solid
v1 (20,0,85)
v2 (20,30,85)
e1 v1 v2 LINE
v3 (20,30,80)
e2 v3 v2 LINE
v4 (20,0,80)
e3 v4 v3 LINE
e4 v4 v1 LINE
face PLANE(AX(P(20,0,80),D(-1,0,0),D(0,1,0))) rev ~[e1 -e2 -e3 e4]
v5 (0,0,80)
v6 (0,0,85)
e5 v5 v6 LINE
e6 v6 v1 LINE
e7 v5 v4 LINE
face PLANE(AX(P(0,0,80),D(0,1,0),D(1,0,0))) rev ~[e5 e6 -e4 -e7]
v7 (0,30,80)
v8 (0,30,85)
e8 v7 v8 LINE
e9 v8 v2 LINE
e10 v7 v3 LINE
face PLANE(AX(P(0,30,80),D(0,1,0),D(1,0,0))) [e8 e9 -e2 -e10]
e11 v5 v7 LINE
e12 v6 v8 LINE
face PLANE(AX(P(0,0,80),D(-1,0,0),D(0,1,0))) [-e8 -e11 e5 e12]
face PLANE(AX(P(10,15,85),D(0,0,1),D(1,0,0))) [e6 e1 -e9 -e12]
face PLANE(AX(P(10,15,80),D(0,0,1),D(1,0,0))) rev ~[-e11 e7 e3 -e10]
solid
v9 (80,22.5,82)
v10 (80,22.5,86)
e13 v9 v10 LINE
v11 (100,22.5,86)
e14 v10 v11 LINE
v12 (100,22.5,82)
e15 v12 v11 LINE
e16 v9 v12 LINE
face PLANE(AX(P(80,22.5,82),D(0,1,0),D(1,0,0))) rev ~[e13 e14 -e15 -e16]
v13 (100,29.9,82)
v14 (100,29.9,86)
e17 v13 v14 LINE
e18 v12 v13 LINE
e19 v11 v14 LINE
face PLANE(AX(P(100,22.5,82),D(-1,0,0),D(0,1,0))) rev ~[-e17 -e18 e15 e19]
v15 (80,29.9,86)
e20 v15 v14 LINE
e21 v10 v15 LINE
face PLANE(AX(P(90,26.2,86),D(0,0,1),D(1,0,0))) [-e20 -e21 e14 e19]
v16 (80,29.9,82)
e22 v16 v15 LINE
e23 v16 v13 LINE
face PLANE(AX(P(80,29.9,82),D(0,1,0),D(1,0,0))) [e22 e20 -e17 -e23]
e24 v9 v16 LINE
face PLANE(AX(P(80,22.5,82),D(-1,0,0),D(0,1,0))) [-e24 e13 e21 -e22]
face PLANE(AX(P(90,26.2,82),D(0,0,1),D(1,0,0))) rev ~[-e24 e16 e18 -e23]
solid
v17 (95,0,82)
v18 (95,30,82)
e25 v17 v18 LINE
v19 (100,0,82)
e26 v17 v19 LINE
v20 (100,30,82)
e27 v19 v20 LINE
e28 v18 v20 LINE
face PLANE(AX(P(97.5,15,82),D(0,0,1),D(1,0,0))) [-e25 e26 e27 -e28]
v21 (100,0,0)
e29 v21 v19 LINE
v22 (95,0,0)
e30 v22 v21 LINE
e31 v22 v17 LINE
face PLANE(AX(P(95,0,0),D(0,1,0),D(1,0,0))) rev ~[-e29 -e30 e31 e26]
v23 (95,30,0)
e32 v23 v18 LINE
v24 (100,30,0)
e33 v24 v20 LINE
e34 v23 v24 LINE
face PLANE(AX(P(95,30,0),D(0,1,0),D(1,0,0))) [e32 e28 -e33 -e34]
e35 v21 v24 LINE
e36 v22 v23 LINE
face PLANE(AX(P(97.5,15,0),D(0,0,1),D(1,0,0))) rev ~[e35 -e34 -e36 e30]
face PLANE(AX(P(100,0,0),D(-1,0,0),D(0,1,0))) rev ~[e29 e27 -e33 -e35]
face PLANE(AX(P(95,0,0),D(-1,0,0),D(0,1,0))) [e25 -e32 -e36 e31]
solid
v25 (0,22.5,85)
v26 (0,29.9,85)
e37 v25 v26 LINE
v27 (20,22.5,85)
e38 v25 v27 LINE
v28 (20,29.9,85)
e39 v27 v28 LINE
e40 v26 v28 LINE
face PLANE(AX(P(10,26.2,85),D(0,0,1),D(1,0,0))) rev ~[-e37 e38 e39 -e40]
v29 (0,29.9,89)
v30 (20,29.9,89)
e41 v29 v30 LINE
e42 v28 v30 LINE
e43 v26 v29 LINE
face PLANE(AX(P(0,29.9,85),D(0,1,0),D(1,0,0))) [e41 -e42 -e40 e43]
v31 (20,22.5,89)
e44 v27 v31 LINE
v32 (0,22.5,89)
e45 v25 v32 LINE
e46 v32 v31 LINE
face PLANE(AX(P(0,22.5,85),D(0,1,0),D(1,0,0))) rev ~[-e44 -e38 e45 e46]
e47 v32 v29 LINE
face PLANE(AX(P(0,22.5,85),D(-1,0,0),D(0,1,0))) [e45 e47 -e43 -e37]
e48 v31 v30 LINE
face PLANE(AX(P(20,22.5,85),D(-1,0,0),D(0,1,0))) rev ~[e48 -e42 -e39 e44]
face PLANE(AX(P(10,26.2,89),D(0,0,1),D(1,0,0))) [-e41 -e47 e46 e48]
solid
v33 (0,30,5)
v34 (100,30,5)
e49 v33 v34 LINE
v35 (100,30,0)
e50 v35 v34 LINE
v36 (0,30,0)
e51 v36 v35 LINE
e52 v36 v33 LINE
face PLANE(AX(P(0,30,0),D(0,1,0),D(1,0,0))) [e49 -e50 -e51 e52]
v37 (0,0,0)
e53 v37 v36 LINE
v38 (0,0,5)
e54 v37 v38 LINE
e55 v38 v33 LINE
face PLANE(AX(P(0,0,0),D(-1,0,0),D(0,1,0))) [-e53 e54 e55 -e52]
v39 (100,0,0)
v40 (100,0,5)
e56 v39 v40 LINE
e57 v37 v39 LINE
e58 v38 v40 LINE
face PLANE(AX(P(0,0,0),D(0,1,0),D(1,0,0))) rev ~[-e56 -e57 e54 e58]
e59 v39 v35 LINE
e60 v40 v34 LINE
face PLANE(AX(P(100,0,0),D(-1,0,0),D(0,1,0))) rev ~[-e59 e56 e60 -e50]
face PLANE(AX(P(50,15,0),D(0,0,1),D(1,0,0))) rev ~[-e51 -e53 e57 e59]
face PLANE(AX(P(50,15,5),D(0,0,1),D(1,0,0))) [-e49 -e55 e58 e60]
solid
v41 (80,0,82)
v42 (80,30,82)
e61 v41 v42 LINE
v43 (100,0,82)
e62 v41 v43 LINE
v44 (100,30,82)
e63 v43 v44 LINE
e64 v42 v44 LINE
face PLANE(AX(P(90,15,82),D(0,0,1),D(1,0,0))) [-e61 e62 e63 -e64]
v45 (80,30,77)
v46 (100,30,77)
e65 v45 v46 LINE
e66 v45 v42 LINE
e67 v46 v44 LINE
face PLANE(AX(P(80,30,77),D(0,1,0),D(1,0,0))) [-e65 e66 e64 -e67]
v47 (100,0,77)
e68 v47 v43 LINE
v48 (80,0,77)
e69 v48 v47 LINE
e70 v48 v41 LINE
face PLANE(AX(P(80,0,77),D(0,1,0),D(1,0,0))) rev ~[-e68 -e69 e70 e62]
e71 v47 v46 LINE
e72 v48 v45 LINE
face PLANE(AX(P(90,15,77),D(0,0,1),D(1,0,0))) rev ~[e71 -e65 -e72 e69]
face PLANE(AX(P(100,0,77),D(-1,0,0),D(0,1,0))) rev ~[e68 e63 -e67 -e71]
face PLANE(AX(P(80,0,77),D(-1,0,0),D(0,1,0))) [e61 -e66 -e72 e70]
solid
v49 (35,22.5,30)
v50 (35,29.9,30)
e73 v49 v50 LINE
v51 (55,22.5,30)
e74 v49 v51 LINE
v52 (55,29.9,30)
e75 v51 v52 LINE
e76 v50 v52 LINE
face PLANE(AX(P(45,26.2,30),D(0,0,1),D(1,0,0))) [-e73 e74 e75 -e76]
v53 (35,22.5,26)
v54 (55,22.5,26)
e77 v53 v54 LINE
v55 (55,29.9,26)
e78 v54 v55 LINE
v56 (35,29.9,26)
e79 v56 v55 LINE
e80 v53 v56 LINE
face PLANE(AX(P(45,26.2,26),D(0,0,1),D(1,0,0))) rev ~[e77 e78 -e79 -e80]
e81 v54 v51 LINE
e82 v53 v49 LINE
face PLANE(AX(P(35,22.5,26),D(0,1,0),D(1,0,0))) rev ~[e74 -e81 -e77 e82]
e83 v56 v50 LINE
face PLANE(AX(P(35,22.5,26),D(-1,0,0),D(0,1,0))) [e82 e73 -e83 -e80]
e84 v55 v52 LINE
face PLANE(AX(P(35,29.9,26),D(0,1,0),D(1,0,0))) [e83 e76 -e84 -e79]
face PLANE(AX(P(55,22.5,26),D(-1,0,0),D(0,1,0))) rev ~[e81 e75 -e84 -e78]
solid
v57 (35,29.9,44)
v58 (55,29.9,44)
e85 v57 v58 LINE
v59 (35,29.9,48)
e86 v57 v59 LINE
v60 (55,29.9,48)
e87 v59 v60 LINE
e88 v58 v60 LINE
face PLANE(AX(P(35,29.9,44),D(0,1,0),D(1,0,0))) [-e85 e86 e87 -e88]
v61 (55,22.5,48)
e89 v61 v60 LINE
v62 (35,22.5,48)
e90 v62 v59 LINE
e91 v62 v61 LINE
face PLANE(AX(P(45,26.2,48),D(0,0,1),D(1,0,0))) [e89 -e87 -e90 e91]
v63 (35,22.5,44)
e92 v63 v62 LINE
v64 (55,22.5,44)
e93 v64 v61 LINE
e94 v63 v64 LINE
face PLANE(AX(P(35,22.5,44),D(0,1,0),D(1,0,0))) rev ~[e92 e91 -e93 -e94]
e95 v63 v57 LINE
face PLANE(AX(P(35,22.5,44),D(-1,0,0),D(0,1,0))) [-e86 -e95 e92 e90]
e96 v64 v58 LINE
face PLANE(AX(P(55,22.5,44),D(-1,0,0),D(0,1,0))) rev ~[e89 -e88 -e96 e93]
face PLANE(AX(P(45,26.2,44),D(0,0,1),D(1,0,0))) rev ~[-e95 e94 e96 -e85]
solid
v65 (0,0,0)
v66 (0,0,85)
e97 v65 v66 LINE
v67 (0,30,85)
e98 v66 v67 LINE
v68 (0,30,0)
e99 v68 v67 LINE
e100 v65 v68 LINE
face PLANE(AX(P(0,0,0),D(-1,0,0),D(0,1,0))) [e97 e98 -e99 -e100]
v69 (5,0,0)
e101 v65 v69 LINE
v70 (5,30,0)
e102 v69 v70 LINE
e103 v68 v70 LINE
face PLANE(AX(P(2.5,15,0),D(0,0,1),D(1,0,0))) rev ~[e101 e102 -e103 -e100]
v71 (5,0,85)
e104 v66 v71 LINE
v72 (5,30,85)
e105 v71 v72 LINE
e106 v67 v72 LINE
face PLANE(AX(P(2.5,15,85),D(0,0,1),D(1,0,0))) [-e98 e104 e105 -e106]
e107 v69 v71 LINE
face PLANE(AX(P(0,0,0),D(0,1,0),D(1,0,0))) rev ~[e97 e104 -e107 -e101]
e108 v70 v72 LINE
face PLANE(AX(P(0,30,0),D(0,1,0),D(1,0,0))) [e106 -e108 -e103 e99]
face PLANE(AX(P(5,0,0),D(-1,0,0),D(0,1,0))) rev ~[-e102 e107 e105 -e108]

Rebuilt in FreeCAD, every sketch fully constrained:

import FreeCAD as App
import Part
import Sketcher
from FreeCAD import Vector


def add_polygon(sketch, points):
    """Adds a closed chain of lines whose ends are joined by coincident constraints."""
    first, n = sketch.GeometryCount, len(points)
    for a, b in zip(points, points[1:] + points[:1]):
        sketch.addGeometry(Part.LineSegment(App.Vector(*a, 0), App.Vector(*b, 0)), False)
    for i in range(n):
        sketch.addConstraint(Sketcher.Constraint("Coincident", first + i, 2, first + (i + 1) % n, 1))

doc = App.newDocument("Part")
body = doc.addObject("PartDesign::Body", "Body")

# Sketch on XY plane
sketch1 = body.newObject("Sketcher::SketchObject", "Sketch")
sketch1.AttachmentSupport = (doc.getObject("XY_Plane"), [""])
sketch1.MapMode = "FlatFace"
add_polygon(sketch1, [(0, 30), (0, 0), (100, 0), (100, 30)])  # lines 0-3
sketch1.addConstraint(Sketcher.Constraint("Vertical", 0))
sketch1.addConstraint(Sketcher.Constraint("Horizontal", 1))
sketch1.addConstraint(Sketcher.Constraint("Vertical", 2))
sketch1.addConstraint(Sketcher.Constraint("Horizontal", 3))
sketch1.addConstraint(Sketcher.Constraint("Coincident", 0, 2, -1, 1))
sketch1.addConstraint(Sketcher.Constraint("DistanceX", 1, 1, 1, 2, 100.0))
sketch1.addConstraint(Sketcher.Constraint("DistanceY", 0, 2, 0, 1, 30.0))
pad1 = body.newObject("PartDesign::Pad", "Pad")
pad1.Profile = sketch1
pad1.Length = 5
body2 = doc.addObject("PartDesign::Body", "Body001")

# Sketch on XY plane
sketch2 = body2.newObject("Sketcher::SketchObject", "Sketch001")
sketch2.AttachmentSupport = (doc.getObject("XY_Plane001"), [""])
sketch2.MapMode = "FlatFace"
add_polygon(sketch2, [(0, 30), (0, 0), (5, 0), (5, 30)])  # lines 0-3
sketch2.addConstraint(Sketcher.Constraint("Vertical", 0))
sketch2.addConstraint(Sketcher.Constraint("Horizontal", 1))
sketch2.addConstraint(Sketcher.Constraint("Vertical", 2))
sketch2.addConstraint(Sketcher.Constraint("Horizontal", 3))
sketch2.addConstraint(Sketcher.Constraint("Coincident", 0, 2, -1, 1))
sketch2.addConstraint(Sketcher.Constraint("DistanceX", 1, 1, 1, 2, 5.0))
sketch2.addConstraint(Sketcher.Constraint("DistanceY", 0, 2, 0, 1, 30.0))
pad2 = body2.newObject("PartDesign::Pad", "Pad001")
pad2.Profile = sketch2
pad2.Length = 85
body3 = doc.addObject("PartDesign::Body", "Body002")

# Sketch on XY plane
sketch3 = body3.newObject("Sketcher::SketchObject", "Sketch002")
sketch3.AttachmentSupport = (doc.getObject("XY_Plane002"), [""])
sketch3.MapMode = "FlatFace"
add_polygon(sketch3, [(95, 30), (95, 0), (100, 0), (100, 30)])  # lines 0-3
sketch3.addConstraint(Sketcher.Constraint("Vertical", 0))
sketch3.addConstraint(Sketcher.Constraint("Horizontal", 1))
sketch3.addConstraint(Sketcher.Constraint("Vertical", 2))
sketch3.addConstraint(Sketcher.Constraint("Horizontal", 3))
sketch3.addConstraint(Sketcher.Constraint("PointOnObject", 0, 2, -1))
sketch3.addConstraint(Sketcher.Constraint("DistanceX", 1, 1, 1, 2, 5.0))
sketch3.addConstraint(Sketcher.Constraint("DistanceY", 0, 2, 0, 1, 30.0))
sketch3.addConstraint(Sketcher.Constraint("DistanceX", -1, 1, 0, 2, 95.0))
pad3 = body3.newObject("PartDesign::Pad", "Pad002")
pad3.Profile = sketch3
pad3.Length = 82
body4 = doc.addObject("PartDesign::Body", "Body003")

# Sketch on XY plane
sketch4 = body4.newObject("Sketcher::SketchObject", "Sketch003")
sketch4.AttachmentSupport = (doc.getObject("XY_Plane003"), [""])
sketch4.MapMode = "FlatFace"
sketch4.AttachmentOffset = App.Placement(Vector(0, 0, 77), App.Rotation())
add_polygon(sketch4, [(80, 30), (80, 0), (100, 0), (100, 30)])  # lines 0-3
sketch4.addConstraint(Sketcher.Constraint("Vertical", 0))
sketch4.addConstraint(Sketcher.Constraint("Horizontal", 1))
sketch4.addConstraint(Sketcher.Constraint("Vertical", 2))
sketch4.addConstraint(Sketcher.Constraint("Horizontal", 3))
sketch4.addConstraint(Sketcher.Constraint("PointOnObject", 0, 2, -1))
sketch4.addConstraint(Sketcher.Constraint("DistanceX", 1, 1, 1, 2, 20.0))
sketch4.addConstraint(Sketcher.Constraint("DistanceY", 0, 2, 0, 1, 30.0))
sketch4.addConstraint(Sketcher.Constraint("DistanceX", -1, 1, 0, 2, 80.0))
pad4 = body4.newObject("PartDesign::Pad", "Pad003")
pad4.Profile = sketch4
pad4.Length = 5
body5 = doc.addObject("PartDesign::Body", "Body004")

# Sketch on XY plane
sketch5 = body5.newObject("Sketcher::SketchObject", "Sketch004")
sketch5.AttachmentSupport = (doc.getObject("XY_Plane004"), [""])
sketch5.MapMode = "FlatFace"
sketch5.AttachmentOffset = App.Placement(Vector(0, 0, 80), App.Rotation())
add_polygon(sketch5, [(0, 30), (0, 0), (20, 0), (20, 30)])  # lines 0-3
sketch5.addConstraint(Sketcher.Constraint("Vertical", 0))
sketch5.addConstraint(Sketcher.Constraint("Horizontal", 1))
sketch5.addConstraint(Sketcher.Constraint("Vertical", 2))
sketch5.addConstraint(Sketcher.Constraint("Horizontal", 3))
sketch5.addConstraint(Sketcher.Constraint("Coincident", 0, 2, -1, 1))
sketch5.addConstraint(Sketcher.Constraint("DistanceX", 1, 1, 1, 2, 20.0))
sketch5.addConstraint(Sketcher.Constraint("DistanceY", 0, 2, 0, 1, 30.0))
pad5 = body5.newObject("PartDesign::Pad", "Pad004")
pad5.Profile = sketch5
pad5.Length = 5
body6 = doc.addObject("PartDesign::Body", "Body005")

# Sketch on XY plane
sketch6 = body6.newObject("Sketcher::SketchObject", "Sketch005")
sketch6.AttachmentSupport = (doc.getObject("XY_Plane005"), [""])
sketch6.MapMode = "FlatFace"
sketch6.AttachmentOffset = App.Placement(Vector(0, 0, 85), App.Rotation())
add_polygon(sketch6, [(0, 29.9), (0, 22.5), (20, 22.5), (20, 29.9)])  # lines 0-3
sketch6.addConstraint(Sketcher.Constraint("Vertical", 0))
sketch6.addConstraint(Sketcher.Constraint("Horizontal", 1))
sketch6.addConstraint(Sketcher.Constraint("Vertical", 2))
sketch6.addConstraint(Sketcher.Constraint("Horizontal", 3))
sketch6.addConstraint(Sketcher.Constraint("PointOnObject", 0, 2, -2))
sketch6.addConstraint(Sketcher.Constraint("DistanceX", 1, 1, 1, 2, 20.0))
sketch6.addConstraint(Sketcher.Constraint("DistanceY", 0, 2, 0, 1, 7.4))
sketch6.addConstraint(Sketcher.Constraint("DistanceY", -1, 1, 0, 2, 22.5))
pad6 = body6.newObject("PartDesign::Pad", "Pad005")
pad6.Profile = sketch6
pad6.Length = 4
body7 = doc.addObject("PartDesign::Body", "Body006")

# Sketch on XY plane
sketch7 = body7.newObject("Sketcher::SketchObject", "Sketch006")
sketch7.AttachmentSupport = (doc.getObject("XY_Plane006"), [""])
sketch7.MapMode = "FlatFace"
sketch7.AttachmentOffset = App.Placement(Vector(0, 0, 82), App.Rotation())
add_polygon(sketch7, [(80, 29.9), (80, 22.5), (100, 22.5), (100, 29.9)])  # lines 0-3
sketch7.addConstraint(Sketcher.Constraint("Vertical", 0))
sketch7.addConstraint(Sketcher.Constraint("Horizontal", 1))
sketch7.addConstraint(Sketcher.Constraint("Vertical", 2))
sketch7.addConstraint(Sketcher.Constraint("Horizontal", 3))
sketch7.addConstraint(Sketcher.Constraint("DistanceX", 1, 1, 1, 2, 20.0))
sketch7.addConstraint(Sketcher.Constraint("DistanceY", 0, 2, 0, 1, 7.4))
sketch7.addConstraint(Sketcher.Constraint("DistanceX", -1, 1, 0, 2, 80.0))
sketch7.addConstraint(Sketcher.Constraint("DistanceY", -1, 1, 0, 2, 22.5))
pad7 = body7.newObject("PartDesign::Pad", "Pad006")
pad7.Profile = sketch7
pad7.Length = 4
body8 = doc.addObject("PartDesign::Body", "Body007")

# Sketch on XY plane
sketch8 = body8.newObject("Sketcher::SketchObject", "Sketch007")
sketch8.AttachmentSupport = (doc.getObject("XY_Plane007"), [""])
sketch8.MapMode = "FlatFace"
sketch8.AttachmentOffset = App.Placement(Vector(0, 0, 26), App.Rotation())
add_polygon(sketch8, [(35, 29.9), (35, 22.5), (55, 22.5), (55, 29.9)])  # lines 0-3
sketch8.addConstraint(Sketcher.Constraint("Vertical", 0))
sketch8.addConstraint(Sketcher.Constraint("Horizontal", 1))
sketch8.addConstraint(Sketcher.Constraint("Vertical", 2))
sketch8.addConstraint(Sketcher.Constraint("Horizontal", 3))
sketch8.addConstraint(Sketcher.Constraint("DistanceX", 1, 1, 1, 2, 20.0))
sketch8.addConstraint(Sketcher.Constraint("DistanceY", 0, 2, 0, 1, 7.4))
sketch8.addConstraint(Sketcher.Constraint("DistanceX", -1, 1, 0, 2, 35.0))
sketch8.addConstraint(Sketcher.Constraint("DistanceY", -1, 1, 0, 2, 22.5))
pad8 = body8.newObject("PartDesign::Pad", "Pad007")
pad8.Profile = sketch8
pad8.Length = 4
body9 = doc.addObject("PartDesign::Body", "Body008")

# Sketch on XY plane
sketch9 = body9.newObject("Sketcher::SketchObject", "Sketch008")
sketch9.AttachmentSupport = (doc.getObject("XY_Plane008"), [""])
sketch9.MapMode = "FlatFace"
sketch9.AttachmentOffset = App.Placement(Vector(0, 0, 44), App.Rotation())
add_polygon(sketch9, [(35, 29.9), (35, 22.5), (55, 22.5), (55, 29.9)])  # lines 0-3
sketch9.addConstraint(Sketcher.Constraint("Vertical", 0))
sketch9.addConstraint(Sketcher.Constraint("Horizontal", 1))
sketch9.addConstraint(Sketcher.Constraint("Vertical", 2))
sketch9.addConstraint(Sketcher.Constraint("Horizontal", 3))
sketch9.addConstraint(Sketcher.Constraint("DistanceX", 1, 1, 1, 2, 20.0))
sketch9.addConstraint(Sketcher.Constraint("DistanceY", 0, 2, 0, 1, 7.4))
sketch9.addConstraint(Sketcher.Constraint("DistanceX", -1, 1, 0, 2, 35.0))
sketch9.addConstraint(Sketcher.Constraint("DistanceY", -1, 1, 0, 2, 22.5))
pad9 = body9.newObject("PartDesign::Pad", "Pad008")
pad9.Profile = sketch9
pad9.Length = 4

doc.recompute()
